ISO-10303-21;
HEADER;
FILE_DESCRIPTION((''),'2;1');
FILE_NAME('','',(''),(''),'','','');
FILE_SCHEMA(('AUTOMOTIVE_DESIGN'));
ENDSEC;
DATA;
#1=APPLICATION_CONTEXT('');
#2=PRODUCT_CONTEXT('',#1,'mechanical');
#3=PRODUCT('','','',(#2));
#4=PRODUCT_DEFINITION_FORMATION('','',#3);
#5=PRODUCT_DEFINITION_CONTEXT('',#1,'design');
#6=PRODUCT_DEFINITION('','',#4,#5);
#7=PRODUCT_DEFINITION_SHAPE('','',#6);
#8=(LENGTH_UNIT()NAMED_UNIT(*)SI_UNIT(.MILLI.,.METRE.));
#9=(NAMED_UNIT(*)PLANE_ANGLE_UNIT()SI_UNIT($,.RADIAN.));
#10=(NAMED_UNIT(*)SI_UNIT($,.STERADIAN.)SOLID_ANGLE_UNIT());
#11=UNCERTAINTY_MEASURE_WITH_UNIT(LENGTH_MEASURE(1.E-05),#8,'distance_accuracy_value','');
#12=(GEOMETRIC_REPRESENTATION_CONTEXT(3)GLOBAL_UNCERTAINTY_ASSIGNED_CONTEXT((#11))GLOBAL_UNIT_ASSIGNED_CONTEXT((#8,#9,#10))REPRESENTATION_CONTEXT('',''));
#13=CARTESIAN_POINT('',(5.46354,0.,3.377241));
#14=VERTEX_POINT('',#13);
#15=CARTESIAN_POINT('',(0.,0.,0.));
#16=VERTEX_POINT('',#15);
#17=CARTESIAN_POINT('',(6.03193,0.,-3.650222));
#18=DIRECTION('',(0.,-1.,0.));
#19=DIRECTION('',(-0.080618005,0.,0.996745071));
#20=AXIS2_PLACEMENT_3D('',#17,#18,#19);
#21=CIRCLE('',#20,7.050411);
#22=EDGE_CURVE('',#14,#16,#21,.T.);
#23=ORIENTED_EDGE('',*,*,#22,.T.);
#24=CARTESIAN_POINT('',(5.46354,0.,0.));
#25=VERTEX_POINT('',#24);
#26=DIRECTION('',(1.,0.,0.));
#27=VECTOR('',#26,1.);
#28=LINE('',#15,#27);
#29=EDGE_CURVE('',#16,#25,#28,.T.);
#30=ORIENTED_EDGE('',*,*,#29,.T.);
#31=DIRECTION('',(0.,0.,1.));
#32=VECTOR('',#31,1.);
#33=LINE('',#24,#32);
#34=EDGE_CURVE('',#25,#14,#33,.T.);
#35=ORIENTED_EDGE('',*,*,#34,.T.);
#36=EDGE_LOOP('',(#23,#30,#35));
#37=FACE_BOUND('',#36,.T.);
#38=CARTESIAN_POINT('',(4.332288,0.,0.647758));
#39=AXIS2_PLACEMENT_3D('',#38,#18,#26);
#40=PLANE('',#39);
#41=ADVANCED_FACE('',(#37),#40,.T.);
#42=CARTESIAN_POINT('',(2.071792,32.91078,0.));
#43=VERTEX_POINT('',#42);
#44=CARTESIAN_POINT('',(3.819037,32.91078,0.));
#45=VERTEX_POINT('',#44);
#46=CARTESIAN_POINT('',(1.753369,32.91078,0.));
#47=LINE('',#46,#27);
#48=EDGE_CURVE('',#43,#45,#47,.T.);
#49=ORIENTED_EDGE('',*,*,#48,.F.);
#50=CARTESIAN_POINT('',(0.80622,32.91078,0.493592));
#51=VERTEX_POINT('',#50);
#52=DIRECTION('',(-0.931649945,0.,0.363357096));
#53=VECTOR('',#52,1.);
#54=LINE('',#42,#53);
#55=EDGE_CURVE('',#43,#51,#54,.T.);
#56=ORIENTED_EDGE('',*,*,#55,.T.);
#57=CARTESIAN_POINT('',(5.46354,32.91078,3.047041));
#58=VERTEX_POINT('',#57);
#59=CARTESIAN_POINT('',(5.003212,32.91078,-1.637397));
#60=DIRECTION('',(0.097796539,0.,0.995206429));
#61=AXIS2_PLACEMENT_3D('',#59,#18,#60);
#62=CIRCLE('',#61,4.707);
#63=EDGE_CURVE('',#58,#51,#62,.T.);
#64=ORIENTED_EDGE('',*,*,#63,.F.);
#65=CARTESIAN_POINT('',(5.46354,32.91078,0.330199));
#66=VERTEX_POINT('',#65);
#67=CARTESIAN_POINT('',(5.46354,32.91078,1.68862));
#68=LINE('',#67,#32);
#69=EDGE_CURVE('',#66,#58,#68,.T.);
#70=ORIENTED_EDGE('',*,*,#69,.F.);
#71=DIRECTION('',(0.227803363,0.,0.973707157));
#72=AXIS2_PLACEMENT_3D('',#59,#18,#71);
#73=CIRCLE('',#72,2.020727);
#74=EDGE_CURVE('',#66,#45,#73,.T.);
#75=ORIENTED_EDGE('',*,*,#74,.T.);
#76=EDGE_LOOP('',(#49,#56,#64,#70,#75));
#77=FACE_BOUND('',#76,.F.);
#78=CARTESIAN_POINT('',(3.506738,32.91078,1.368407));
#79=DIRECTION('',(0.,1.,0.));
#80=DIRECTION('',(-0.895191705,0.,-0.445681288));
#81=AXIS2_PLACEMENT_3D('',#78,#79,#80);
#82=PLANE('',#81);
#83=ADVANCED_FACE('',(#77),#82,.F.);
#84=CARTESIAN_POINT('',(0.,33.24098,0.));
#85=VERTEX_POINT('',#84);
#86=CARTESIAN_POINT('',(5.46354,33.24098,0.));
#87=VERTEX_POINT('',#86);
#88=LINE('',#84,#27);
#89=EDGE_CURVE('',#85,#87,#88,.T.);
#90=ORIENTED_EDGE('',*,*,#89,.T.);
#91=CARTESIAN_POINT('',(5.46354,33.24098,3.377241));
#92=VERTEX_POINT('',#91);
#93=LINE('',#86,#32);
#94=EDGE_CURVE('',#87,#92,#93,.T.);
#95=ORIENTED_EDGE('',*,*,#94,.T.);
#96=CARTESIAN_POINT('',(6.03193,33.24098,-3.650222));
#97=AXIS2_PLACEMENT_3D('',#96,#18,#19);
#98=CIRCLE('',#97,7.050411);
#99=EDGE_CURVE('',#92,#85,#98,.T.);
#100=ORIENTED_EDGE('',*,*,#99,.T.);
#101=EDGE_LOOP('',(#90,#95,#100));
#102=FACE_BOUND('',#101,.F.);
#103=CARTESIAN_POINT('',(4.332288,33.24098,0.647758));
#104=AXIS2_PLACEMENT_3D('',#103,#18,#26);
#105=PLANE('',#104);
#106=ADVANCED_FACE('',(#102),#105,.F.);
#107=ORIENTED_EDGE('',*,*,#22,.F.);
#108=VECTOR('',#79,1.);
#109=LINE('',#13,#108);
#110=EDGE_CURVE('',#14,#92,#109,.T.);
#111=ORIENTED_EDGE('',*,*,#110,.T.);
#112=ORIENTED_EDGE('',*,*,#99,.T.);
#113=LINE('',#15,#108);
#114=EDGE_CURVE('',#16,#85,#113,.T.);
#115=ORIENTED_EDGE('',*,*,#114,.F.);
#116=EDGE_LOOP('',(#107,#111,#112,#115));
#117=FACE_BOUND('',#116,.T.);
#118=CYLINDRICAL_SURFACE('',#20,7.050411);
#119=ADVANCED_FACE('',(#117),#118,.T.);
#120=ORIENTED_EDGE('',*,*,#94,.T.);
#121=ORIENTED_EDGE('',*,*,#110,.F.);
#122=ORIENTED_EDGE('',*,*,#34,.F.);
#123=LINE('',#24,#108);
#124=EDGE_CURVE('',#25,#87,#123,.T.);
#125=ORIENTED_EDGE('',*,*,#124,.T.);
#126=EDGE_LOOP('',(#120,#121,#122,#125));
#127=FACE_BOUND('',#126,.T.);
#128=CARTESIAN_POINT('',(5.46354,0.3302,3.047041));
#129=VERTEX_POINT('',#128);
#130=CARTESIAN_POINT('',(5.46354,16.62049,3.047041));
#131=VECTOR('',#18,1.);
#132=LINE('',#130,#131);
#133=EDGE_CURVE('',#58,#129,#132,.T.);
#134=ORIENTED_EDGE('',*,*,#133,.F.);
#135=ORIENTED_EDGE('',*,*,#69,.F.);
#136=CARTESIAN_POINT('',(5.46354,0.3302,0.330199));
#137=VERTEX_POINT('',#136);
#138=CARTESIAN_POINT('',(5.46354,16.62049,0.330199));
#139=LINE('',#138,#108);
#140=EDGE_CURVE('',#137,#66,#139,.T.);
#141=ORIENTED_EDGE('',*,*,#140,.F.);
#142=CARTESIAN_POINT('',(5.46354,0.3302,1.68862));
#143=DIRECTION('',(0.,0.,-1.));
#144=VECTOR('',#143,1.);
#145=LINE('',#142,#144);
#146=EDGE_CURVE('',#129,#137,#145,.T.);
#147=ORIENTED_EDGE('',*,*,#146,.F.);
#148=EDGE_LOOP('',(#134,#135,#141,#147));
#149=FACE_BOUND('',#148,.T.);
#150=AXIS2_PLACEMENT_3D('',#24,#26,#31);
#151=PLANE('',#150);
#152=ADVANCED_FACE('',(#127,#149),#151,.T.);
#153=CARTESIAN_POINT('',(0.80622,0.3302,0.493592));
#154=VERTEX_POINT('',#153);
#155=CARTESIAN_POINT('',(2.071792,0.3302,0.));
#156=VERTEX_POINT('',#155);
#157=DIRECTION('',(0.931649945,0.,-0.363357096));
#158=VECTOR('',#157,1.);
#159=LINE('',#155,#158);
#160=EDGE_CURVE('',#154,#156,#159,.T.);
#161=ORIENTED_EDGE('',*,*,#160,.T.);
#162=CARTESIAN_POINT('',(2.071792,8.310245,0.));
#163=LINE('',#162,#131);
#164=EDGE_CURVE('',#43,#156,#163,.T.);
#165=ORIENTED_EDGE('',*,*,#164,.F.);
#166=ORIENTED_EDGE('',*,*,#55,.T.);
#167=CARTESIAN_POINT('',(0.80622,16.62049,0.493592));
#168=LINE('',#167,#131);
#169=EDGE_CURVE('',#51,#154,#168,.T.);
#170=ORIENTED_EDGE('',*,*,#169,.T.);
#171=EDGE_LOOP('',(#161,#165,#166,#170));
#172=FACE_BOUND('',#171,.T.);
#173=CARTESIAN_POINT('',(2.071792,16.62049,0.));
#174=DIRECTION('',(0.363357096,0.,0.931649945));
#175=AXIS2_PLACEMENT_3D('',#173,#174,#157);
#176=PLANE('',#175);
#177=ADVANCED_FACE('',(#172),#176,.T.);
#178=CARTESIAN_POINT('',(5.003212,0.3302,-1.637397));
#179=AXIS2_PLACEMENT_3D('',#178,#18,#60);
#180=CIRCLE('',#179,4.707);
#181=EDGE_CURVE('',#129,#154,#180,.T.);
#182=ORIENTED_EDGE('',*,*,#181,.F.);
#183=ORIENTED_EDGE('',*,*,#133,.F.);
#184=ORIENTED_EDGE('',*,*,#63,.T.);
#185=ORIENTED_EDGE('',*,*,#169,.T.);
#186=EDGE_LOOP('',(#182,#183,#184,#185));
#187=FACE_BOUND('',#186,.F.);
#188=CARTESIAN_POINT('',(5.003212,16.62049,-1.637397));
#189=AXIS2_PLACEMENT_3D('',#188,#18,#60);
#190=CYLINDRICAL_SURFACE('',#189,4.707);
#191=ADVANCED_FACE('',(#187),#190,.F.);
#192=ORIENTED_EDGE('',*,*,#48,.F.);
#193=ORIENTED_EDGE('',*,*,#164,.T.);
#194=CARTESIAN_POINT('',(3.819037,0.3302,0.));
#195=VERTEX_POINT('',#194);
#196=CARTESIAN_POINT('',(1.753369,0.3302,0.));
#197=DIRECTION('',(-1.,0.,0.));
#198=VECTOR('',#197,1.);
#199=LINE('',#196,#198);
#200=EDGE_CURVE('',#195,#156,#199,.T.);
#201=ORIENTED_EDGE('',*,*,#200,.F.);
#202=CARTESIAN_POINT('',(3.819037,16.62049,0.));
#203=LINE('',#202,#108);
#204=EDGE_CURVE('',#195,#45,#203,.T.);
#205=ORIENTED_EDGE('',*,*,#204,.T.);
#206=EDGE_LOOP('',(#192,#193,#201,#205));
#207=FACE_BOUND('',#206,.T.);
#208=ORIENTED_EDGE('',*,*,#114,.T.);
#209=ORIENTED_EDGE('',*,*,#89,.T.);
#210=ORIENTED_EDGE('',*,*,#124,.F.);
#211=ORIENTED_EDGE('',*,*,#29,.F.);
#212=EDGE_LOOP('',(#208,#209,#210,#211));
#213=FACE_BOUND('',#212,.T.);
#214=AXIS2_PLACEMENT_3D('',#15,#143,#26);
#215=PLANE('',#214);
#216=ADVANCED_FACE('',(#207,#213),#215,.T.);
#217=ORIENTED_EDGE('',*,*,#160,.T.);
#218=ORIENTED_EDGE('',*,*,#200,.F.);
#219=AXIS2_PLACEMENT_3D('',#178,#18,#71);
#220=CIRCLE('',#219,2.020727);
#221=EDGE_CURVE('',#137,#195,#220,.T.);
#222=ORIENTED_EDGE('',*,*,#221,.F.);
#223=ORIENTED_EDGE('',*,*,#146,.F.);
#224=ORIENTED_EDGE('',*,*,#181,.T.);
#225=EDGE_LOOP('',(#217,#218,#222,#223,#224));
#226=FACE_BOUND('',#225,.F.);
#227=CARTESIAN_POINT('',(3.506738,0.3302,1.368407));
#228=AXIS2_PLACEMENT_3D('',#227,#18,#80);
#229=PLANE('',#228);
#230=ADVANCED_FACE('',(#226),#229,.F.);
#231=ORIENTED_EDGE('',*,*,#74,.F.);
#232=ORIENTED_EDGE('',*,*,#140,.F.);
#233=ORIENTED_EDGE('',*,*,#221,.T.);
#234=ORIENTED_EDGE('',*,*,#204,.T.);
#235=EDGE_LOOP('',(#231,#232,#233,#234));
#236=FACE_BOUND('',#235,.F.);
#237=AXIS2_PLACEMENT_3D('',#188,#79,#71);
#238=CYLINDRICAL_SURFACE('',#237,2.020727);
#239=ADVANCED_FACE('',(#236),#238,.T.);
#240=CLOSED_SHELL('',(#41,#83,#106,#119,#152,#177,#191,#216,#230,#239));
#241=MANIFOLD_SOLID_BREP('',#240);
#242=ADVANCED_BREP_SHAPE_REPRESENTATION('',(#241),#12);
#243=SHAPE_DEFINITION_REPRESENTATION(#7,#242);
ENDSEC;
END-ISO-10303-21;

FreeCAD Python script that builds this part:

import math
import FreeCAD as App
import Part
import Sketcher
from FreeCAD import Vector


def add_polygon(sketch, points):
    """Adds a closed chain of lines whose ends are joined by coincident constraints."""
    first, n = sketch.GeometryCount, len(points)
    for a, b in zip(points, points[1:] + points[:1]):
        sketch.addGeometry(Part.LineSegment(App.Vector(*a, 0), App.Vector(*b, 0)), False)
    for i in range(n):
        sketch.addConstraint(Sketcher.Constraint("Coincident", first + i, 2, first + (i + 1) % n, 1))

doc = App.newDocument("Part")
body = doc.addObject("PartDesign::Body", "Body")

# Sketch on XZ plane
sketch1 = body.newObject("Sketcher::SketchObject", "Sketch")
sketch1.AttachmentSupport = (doc.getObject("XZ_Plane"), [""])
sketch1.MapMode = "FlatFace"
sketch1.addGeometry(Part.LineSegment(Vector(5.5, 0, 0), Vector(5.5, 3.4, 0)), False)
sketch1.addGeometry(Part.ArcOfCircle(Part.Circle(Vector(6, -3.7, 0), Vector(0, 0, 1), 7.1), math.radians(95), math.radians(149)), False)
sketch1.addGeometry(Part.LineSegment(Vector(0, 0, 0), Vector(5.5, 0, 0)), False)
sketch1.addConstraint(Sketcher.Constraint("Coincident", 0, 2, 1, 1))
sketch1.addConstraint(Sketcher.Constraint("Coincident", 1, 2, 2, 1))
sketch1.addConstraint(Sketcher.Constraint("Coincident", 2, 2, 0, 1))
sketch1.addConstraint(Sketcher.Constraint("Vertical", 0))
sketch1.addConstraint(Sketcher.Constraint("Horizontal", 2))
sketch1.addConstraint(Sketcher.Constraint("Coincident", 1, 2, -1, 1))
sketch1.addConstraint(Sketcher.Constraint("Radius", 1, 7.050411))
sketch1.addConstraint(Sketcher.Constraint("DistanceX", 2, 1, 2, 2, 5.46354))
sketch1.addConstraint(Sketcher.Constraint("DistanceY", 0, 1, 0, 2, 3.377241))
pad1 = body.newObject("PartDesign::Pad", "Pad")
pad1.Profile = sketch1
pad1.Length = 33.24098
pad1.Reversed = True

# Sketch on YZ plane
sketch2 = body.newObject("Sketcher::SketchObject", "Sketch001")
sketch2.AttachmentSupport = (doc.getObject("YZ_Plane"), [""])
sketch2.MapMode = "FlatFace"
sketch2.AttachmentOffset = App.Placement(Vector(0, 0, 5.46354), App.Rotation())
add_polygon(sketch2, [(0.3, 3), (0.3, 0.3), (32.9, 0.3), (32.9, 3)])  # lines 0-3
sketch2.addConstraint(Sketcher.Constraint("Vertical", 0))
sketch2.addConstraint(Sketcher.Constraint("Horizontal", 1))
sketch2.addConstraint(Sketcher.Constraint("Vertical", 2))
sketch2.addConstraint(Sketcher.Constraint("Horizontal", 3))
sketch2.addConstraint(Sketcher.Constraint("DistanceX", 1, 1, 1, 2, 32.58058))
sketch2.addConstraint(Sketcher.Constraint("DistanceY", 0, 2, 0, 1, 2.716841))
sketch2.addConstraint(Sketcher.Constraint("DistanceX", -1, 1, 0, 2, 0.3302))
sketch2.addConstraint(Sketcher.Constraint("DistanceY", -1, 1, 0, 2, 0.330199))

# Sketch on XZ plane
sketch3 = body.newObject("Sketcher::SketchObject", "Sketch002")
sketch3.AttachmentSupport = (doc.getObject("XZ_Plane"), [""])
sketch3.MapMode = "FlatFace"
sketch3.addGeometry(Part.ArcOfCircle(Part.Circle(Vector(5, -1.6, 0), Vector(0, 0, 1), 3.4), math.radians(82), math.radians(151)), False)
sketch3.addConstraint(Sketcher.Constraint("PointOnObject", 0, 2, -1))
sketch3.addConstraint(Sketcher.Constraint("Radius", 0, 3.357721))
sketch3.addConstraint(Sketcher.Constraint("DistanceX", -1, 1, 0, 3, 5.003212))
sketch3.addConstraint(Sketcher.Constraint("DistanceX", -1, 1, 0, 1, 5.46354))
sketch3.addConstraint(Sketcher.Constraint("DistanceY", -1, 1, 0, 1, 1.68862))
doc.recompute()

subtractivepipe = body.newObject("PartDesign::SubtractivePipe", "SubtractivePipe")
subtractivepipe.Profile = sketch2
subtractivepipe.Spine = (sketch3, ["Edge1"])

doc.recompute()
